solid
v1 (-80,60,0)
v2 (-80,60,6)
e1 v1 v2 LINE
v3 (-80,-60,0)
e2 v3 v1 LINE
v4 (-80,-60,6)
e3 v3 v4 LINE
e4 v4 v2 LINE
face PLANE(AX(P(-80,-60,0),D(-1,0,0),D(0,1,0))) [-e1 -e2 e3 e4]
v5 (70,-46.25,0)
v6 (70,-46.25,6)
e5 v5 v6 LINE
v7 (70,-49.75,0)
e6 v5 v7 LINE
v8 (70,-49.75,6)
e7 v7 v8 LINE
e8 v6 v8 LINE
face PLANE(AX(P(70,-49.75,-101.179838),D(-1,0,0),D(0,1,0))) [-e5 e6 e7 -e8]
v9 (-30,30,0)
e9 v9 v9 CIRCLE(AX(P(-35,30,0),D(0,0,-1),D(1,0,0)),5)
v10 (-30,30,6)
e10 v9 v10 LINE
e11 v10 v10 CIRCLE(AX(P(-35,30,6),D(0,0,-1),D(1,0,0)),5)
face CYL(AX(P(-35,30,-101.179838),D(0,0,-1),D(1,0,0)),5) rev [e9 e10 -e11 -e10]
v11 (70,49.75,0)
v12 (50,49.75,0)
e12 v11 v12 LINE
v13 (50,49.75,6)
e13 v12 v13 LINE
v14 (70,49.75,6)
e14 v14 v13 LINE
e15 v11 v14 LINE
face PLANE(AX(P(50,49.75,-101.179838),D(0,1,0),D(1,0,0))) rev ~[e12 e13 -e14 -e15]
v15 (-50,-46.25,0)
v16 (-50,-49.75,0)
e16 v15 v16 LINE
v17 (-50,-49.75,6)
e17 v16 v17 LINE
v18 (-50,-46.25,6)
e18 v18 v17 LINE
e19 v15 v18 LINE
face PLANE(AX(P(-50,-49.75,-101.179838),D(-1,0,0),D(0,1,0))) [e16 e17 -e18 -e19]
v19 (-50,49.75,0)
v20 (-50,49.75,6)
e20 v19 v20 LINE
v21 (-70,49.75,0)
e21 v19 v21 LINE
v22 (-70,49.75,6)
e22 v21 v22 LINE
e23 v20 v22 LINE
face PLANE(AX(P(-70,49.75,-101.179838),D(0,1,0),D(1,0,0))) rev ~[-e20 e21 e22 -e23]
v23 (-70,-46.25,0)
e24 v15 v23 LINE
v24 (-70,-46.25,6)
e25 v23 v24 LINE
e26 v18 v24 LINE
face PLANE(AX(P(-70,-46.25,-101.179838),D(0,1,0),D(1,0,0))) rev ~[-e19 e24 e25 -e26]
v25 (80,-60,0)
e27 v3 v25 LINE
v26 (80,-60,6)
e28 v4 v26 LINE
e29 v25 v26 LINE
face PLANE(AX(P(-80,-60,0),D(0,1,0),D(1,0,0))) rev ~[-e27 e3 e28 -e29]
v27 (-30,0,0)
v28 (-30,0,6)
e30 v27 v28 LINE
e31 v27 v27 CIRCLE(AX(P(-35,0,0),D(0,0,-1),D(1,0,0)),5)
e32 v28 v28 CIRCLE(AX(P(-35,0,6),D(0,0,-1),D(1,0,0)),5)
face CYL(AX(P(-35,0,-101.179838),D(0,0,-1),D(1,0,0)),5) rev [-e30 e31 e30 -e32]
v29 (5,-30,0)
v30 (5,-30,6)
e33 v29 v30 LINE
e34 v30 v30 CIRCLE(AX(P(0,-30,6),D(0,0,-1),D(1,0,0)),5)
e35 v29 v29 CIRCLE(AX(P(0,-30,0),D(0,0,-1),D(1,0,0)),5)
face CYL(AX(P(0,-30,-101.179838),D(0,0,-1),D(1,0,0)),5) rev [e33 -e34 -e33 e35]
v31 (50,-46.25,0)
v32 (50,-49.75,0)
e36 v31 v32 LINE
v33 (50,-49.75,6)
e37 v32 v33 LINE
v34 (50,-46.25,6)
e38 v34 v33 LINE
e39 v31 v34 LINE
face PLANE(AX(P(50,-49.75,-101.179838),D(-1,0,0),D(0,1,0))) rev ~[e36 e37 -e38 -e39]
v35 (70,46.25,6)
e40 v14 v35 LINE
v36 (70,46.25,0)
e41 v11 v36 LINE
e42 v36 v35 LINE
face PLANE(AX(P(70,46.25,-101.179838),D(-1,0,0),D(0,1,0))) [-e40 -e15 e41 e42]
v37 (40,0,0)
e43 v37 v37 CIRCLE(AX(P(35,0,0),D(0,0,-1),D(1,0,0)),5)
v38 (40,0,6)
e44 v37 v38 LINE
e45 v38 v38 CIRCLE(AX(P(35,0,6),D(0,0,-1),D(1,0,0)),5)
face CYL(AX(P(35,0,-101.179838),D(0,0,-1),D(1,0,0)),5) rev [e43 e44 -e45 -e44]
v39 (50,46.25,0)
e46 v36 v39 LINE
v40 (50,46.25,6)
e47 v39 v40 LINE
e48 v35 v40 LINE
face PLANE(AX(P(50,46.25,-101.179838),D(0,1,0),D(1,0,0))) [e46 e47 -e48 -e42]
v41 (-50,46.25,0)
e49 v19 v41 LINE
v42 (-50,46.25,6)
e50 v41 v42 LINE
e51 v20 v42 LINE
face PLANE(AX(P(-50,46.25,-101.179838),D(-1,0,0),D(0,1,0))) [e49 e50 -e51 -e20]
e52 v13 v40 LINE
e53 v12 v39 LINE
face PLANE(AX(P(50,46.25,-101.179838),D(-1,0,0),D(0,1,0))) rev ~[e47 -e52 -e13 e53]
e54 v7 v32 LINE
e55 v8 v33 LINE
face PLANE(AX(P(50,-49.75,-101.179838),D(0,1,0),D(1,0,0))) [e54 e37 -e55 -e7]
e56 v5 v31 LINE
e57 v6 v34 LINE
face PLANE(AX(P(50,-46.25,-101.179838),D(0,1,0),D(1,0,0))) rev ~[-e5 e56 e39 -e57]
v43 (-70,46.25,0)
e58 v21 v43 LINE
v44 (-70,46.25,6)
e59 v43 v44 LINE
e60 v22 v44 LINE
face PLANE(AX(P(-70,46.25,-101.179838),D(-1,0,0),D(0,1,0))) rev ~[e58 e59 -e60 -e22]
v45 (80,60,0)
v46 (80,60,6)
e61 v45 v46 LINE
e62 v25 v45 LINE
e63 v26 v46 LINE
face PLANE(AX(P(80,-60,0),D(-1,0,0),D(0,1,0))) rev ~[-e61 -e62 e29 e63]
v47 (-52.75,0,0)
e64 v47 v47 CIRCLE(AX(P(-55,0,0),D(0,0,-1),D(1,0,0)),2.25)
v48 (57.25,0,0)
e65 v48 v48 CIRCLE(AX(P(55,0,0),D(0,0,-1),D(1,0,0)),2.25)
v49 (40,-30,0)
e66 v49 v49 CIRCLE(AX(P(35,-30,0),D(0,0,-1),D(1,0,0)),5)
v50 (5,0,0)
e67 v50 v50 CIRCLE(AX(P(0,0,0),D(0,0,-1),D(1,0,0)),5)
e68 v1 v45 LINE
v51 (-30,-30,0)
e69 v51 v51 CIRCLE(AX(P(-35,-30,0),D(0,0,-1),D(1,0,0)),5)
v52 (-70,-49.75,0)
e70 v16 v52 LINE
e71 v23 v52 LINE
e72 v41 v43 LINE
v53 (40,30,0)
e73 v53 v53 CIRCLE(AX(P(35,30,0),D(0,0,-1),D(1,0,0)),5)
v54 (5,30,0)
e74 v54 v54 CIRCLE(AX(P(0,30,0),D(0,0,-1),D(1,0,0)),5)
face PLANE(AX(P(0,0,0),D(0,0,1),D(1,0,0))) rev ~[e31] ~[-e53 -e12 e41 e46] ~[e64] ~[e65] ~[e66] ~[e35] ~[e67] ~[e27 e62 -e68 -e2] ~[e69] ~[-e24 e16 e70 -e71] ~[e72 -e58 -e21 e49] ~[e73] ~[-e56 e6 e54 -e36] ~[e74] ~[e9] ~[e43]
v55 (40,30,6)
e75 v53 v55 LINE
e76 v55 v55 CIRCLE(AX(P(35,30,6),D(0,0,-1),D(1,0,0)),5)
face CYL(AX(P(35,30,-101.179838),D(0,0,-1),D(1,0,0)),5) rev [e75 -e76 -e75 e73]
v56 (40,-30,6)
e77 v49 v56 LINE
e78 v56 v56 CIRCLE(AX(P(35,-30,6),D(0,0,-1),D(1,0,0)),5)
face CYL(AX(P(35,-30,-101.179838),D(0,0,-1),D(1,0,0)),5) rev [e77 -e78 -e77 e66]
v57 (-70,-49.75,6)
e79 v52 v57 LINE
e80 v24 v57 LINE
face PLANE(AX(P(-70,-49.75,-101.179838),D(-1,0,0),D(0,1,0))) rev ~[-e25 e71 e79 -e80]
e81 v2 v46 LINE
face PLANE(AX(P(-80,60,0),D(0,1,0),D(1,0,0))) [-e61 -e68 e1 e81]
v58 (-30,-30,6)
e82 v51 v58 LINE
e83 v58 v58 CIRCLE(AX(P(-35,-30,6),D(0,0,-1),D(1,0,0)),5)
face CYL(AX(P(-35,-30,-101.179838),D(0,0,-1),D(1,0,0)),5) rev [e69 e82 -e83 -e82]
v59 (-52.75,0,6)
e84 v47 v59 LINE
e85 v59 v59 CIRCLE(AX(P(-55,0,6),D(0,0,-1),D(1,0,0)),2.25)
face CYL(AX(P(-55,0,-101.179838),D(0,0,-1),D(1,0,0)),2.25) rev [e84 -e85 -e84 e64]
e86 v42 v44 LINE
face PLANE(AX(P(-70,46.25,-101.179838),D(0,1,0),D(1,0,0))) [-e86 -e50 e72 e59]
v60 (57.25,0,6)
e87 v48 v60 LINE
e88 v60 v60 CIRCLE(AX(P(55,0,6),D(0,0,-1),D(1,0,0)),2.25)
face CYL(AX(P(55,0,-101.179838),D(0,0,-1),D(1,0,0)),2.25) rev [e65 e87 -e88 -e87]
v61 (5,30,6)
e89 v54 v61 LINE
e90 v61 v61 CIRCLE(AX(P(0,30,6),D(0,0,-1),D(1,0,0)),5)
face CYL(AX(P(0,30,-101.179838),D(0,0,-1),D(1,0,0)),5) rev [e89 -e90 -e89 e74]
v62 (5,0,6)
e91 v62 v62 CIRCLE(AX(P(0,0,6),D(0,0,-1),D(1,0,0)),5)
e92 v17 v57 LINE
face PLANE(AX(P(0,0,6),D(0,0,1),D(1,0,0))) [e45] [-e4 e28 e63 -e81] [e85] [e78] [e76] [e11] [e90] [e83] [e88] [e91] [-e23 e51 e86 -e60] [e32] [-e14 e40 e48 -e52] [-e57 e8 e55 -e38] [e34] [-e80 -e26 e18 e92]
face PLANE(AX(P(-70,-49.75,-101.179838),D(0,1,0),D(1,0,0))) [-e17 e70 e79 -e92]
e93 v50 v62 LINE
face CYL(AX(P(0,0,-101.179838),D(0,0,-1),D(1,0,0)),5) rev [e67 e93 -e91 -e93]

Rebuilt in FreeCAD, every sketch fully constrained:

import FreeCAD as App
import Part
import Sketcher

V = App.Vector

doc = App.newDocument("Part")
body = doc.addObject("PartDesign::Body", "Body")

# Sketch on XY plane
sketch1 = body.newObject("Sketcher::SketchObject", "Sketch")
sketch1.AttachmentSupport = (doc.getObject("XY_Plane"), [""])
sketch1.MapMode = "FlatFace"
sketch1.addGeometry(Part.LineSegment(V(-80, 60, 0), V(-80, -60, 0)), False)
sketch1.addGeometry(Part.LineSegment(V(-80, -60, 0), V(80, -60, 0)), False)
sketch1.addGeometry(Part.LineSegment(V(80, -60, 0), V(80, 60, 0)), False)
sketch1.addGeometry(Part.LineSegment(V(80, 60, 0), V(-80, 60, 0)), False)
sketch1.addConstraint(Sketcher.Constraint("Coincident", 0, 2, 1, 1))
sketch1.addConstraint(Sketcher.Constraint("Coincident", 1, 2, 2, 1))
sketch1.addConstraint(Sketcher.Constraint("Coincident", 2, 2, 3, 1))
sketch1.addConstraint(Sketcher.Constraint("Coincident", 3, 2, 0, 1))
sketch1.addConstraint(Sketcher.Constraint("Vertical", 0))
sketch1.addConstraint(Sketcher.Constraint("Horizontal", 1))
sketch1.addConstraint(Sketcher.Constraint("Vertical", 2))
sketch1.addConstraint(Sketcher.Constraint("Horizontal", 3))
sketch1.addConstraint(Sketcher.Constraint("Symmetric", 0, 2, 2, 2, -1, 1))
sketch1.addConstraint(Sketcher.Constraint("DistanceX", 1, 1, 1, 2, 160.0))
sketch1.addConstraint(Sketcher.Constraint("DistanceY", 0, 2, 0, 1, 120.0))
pad1 = body.newObject("PartDesign::Pad", "Pad")
pad1.Profile = sketch1
pad1.Length = 6

# Sketch on XY plane
sketch2 = body.newObject("Sketcher::SketchObject", "Sketch001")
sketch2.AttachmentSupport = (doc.getObject("XY_Plane"), [""])
sketch2.MapMode = "FlatFace"
sketch2.addGeometry(Part.Circle(V(-55, 0, 0), V(0, 0, 1), 2.2), False)
sketch2.addGeometry(Part.Circle(V(55, 0, 0), V(0, 0, 1), 2.2), False)
sketch2.addGeometry(Part.Circle(V(-35, -30, 0), V(0, 0, 1), 5), False)
sketch2.addGeometry(Part.Circle(V(-35, 0, 0), V(0, 0, 1), 5), False)
sketch2.addGeometry(Part.Circle(V(-35, 30, 0), V(0, 0, 1), 5), False)
sketch2.addGeometry(Part.Circle(V(0, -30, 0), V(0, 0, 1), 5), False)
sketch2.addGeometry(Part.Circle(V(0, 0, 0), V(0, 0, 1), 5), False)
sketch2.addGeometry(Part.Circle(V(0, 30, 0), V(0, 0, 1), 5), False)
sketch2.addGeometry(Part.Circle(V(35, -30, 0), V(0, 0, 1), 5), False)
sketch2.addGeometry(Part.Circle(V(35, 0, 0), V(0, 0, 1), 5), False)
sketch2.addGeometry(Part.Circle(V(35, 30, 0), V(0, 0, 1), 5), False)
sketch2.addGeometry(Part.LineSegment(V(-70, -46.2, 0), V(-70, -49.8, 0)), False)
sketch2.addGeometry(Part.LineSegment(V(-70, -49.8, 0), V(-50, -49.8, 0)), False)
sketch2.addGeometry(Part.LineSegment(V(-50, -49.8, 0), V(-50, -46.2, 0)), False)
sketch2.addGeometry(Part.LineSegment(V(-50, -46.2, 0), V(-70, -46.2, 0)), False)
sketch2.addGeometry(Part.LineSegment(V(-70, 49.8, 0), V(-70, 46.2, 0)), False)
sketch2.addGeometry(Part.LineSegment(V(-70, 46.2, 0), V(-50, 46.2, 0)), False)
sketch2.addGeometry(Part.LineSegment(V(-50, 46.2, 0), V(-50, 49.8, 0)), False)
sketch2.addGeometry(Part.LineSegment(V(-50, 49.8, 0), V(-70, 49.8, 0)), False)
sketch2.addGeometry(Part.LineSegment(V(50, -46.2, 0), V(50, -49.8, 0)), False)
sketch2.addGeometry(Part.LineSegment(V(50, -49.8, 0), V(70, -49.8, 0)), False)
sketch2.addGeometry(Part.LineSegment(V(70, -49.8, 0), V(70, -46.2, 0)), False)
sketch2.addGeometry(Part.LineSegment(V(70, -46.2, 0), V(50, -46.2, 0)), False)
sketch2.addGeometry(Part.LineSegment(V(50, 49.8, 0), V(50, 46.2, 0)), False)
sketch2.addGeometry(Part.LineSegment(V(50, 46.2, 0), V(70, 46.2, 0)), False)
sketch2.addGeometry(Part.LineSegment(V(70, 46.2, 0), V(70, 49.8, 0)), False)
sketch2.addGeometry(Part.LineSegment(V(70, 49.8, 0), V(50, 49.8, 0)), False)
sketch2.addConstraint(Sketcher.Constraint("Coincident", 11, 2, 12, 1))
sketch2.addConstraint(Sketcher.Constraint("Coincident", 12, 2, 13, 1))
sketch2.addConstraint(Sketcher.Constraint("Coincident", 13, 2, 14, 1))
sketch2.addConstraint(Sketcher.Constraint("Coincident", 14, 2, 11, 1))
sketch2.addConstraint(Sketcher.Constraint("Coincident", 15, 2, 16, 1))
sketch2.addConstraint(Sketcher.Constraint("Coincident", 16, 2, 17, 1))
sketch2.addConstraint(Sketcher.Constraint("Coincident", 17, 2, 18, 1))
sketch2.addConstraint(Sketcher.Constraint("Coincident", 18, 2, 15, 1))
sketch2.addConstraint(Sketcher.Constraint("Coincident", 19, 2, 20, 1))
sketch2.addConstraint(Sketcher.Constraint("Coincident", 20, 2, 21, 1))
sketch2.addConstraint(Sketcher.Constraint("Coincident", 21, 2, 22, 1))
sketch2.addConstraint(Sketcher.Constraint("Coincident", 22, 2, 19, 1))
sketch2.addConstraint(Sketcher.Constraint("Coincident", 23, 2, 24, 1))
sketch2.addConstraint(Sketcher.Constraint("Coincident", 24, 2, 25, 1))
sketch2.addConstraint(Sketcher.Constraint("Coincident", 25, 2, 26, 1))
sketch2.addConstraint(Sketcher.Constraint("Coincident", 26, 2, 23, 1))
sketch2.addConstraint(Sketcher.Constraint("Vertical", 11))
sketch2.addConstraint(Sketcher.Constraint("Horizontal", 12))
sketch2.addConstraint(Sketcher.Constraint("Vertical", 13))
sketch2.addConstraint(Sketcher.Constraint("Horizontal", 14))
sketch2.addConstraint(Sketcher.Constraint("Vertical", 15))
sketch2.addConstraint(Sketcher.Constraint("Horizontal", 16))
sketch2.addConstraint(Sketcher.Constraint("Vertical", 17))
sketch2.addConstraint(Sketcher.Constraint("Horizontal", 18))
sketch2.addConstraint(Sketcher.Constraint("Vertical", 19))
sketch2.addConstraint(Sketcher.Constraint("Horizontal", 20))
sketch2.addConstraint(Sketcher.Constraint("Vertical", 21))
sketch2.addConstraint(Sketcher.Constraint("Horizontal", 22))
sketch2.addConstraint(Sketcher.Constraint("Vertical", 23))
sketch2.addConstraint(Sketcher.Constraint("Horizontal", 24))
sketch2.addConstraint(Sketcher.Constraint("Vertical", 25))
sketch2.addConstraint(Sketcher.Constraint("Horizontal", 26))
sketch2.addConstraint(Sketcher.Constraint("Coincident", 6, 3, -1, 1))
sketch2.addConstraint(Sketcher.Constraint("Equal", 0, 1))
sketch2.addConstraint(Sketcher.Constraint("Equal", 2, 3))
sketch2.addConstraint(Sketcher.Constraint("Equal", 3, 4))
sketch2.addConstraint(Sketcher.Constraint("Equal", 4, 5))
sketch2.addConstraint(Sketcher.Constraint("Equal", 5, 6))
sketch2.addConstraint(Sketcher.Constraint("Equal", 6, 7))
sketch2.addConstraint(Sketcher.Constraint("Equal", 7, 8))
sketch2.addConstraint(Sketcher.Constraint("Equal", 8, 9))
sketch2.addConstraint(Sketcher.Constraint("Equal", 9, 10))
sketch2.addConstraint(Sketcher.Constraint("Symmetric", 0, 3, 1, 3, -1, 1))
sketch2.addConstraint(Sketcher.Constraint("Symmetric", 5, 3, 7, 3, -1, 1))
sketch2.addConstraint(Sketcher.Constraint("Symmetric", 4, 3, 8, 3, -1, 1))
sketch2.addConstraint(Sketcher.Constraint("Symmetric", 3, 3, 9, 3, -1, 1))
sketch2.addConstraint(Sketcher.Constraint("Symmetric", 2, 3, 10, 3, -1, 1))
sketch2.addConstraint(Sketcher.Constraint("Symmetric", 17, 2, 19, 2, -1, 1))
sketch2.addConstraint(Sketcher.Constraint("Symmetric", 15, 2, 21, 2, -1, 1))
sketch2.addConstraint(Sketcher.Constraint("Symmetric", 13, 2, 23, 2, -1, 1))
sketch2.addConstraint(Sketcher.Constraint("Symmetric", 11, 2, 25, 2, -1, 1))
sketch2.addConstraint(Sketcher.Constraint("Symmetric", 2, 3, 8, 3, -2))
sketch2.addConstraint(Sketcher.Constraint("Symmetric", 12, 2, 19, 2, -2))
sketch2.addConstraint(Sketcher.Constraint("Symmetric", 14, 2, 21, 2, -2))
sketch2.addConstraint(Sketcher.Constraint("PointOnObject", 0, 3, -1))
sketch2.addConstraint(Sketcher.Constraint("PointOnObject", 3, 3, -1))
sketch2.addConstraint(Sketcher.Constraint("PointOnObject", 5, 3, -2))
sketch2.addConstraint(Sketcher.Constraint("Horizontal", 2, 3, 5, 3))
sketch2.addConstraint(Sketcher.Constraint("Vertical", 2, 3, 3, 3))
sketch2.addConstraint(Sketcher.Constraint("Diameter", 2, 10.0))
sketch2.addConstraint(Sketcher.Constraint("Diameter", 0, 4.5))
sketch2.addConstraint(Sketcher.Constraint("DistanceX", 12, 1, 12, 2, 20.0))
sketch2.addConstraint(Sketcher.Constraint("DistanceY", 11, 2, 11, 1, 3.5))
sketch2.addConstraint(Sketcher.Constraint("DistanceX", 0, 3, -1, 1, 55.0))
sketch2.addConstraint(Sketcher.Constraint("DistanceX", 2, 3, -1, 1, 35.0))
sketch2.addConstraint(Sketcher.Constraint("DistanceY", 2, 3, -1, 1, 30.0))
sketch2.addConstraint(Sketcher.Constraint("DistanceX", 11, 2, -1, 1, 70.0))
sketch2.addConstraint(Sketcher.Constraint("DistanceY", 11, 2, -1, 1, 49.75))
pocket1 = body.newObject("PartDesign::Pocket", "Pocket")
pocket1.Profile = sketch2
pocket1.Type = "ThroughAll"
pocket1.Midplane = True

doc.recompute()
